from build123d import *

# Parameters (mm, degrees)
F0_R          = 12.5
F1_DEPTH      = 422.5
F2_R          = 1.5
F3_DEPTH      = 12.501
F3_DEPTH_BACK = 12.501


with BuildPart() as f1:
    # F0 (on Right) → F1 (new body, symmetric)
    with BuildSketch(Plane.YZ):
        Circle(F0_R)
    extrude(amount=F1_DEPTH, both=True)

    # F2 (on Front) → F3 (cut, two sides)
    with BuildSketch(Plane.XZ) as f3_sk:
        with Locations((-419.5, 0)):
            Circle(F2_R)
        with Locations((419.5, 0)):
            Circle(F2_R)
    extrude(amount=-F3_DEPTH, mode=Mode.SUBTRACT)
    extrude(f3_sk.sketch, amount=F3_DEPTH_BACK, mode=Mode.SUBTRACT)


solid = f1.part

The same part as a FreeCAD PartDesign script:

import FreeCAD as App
import Part
import Sketcher
Q = App.Units.Quantity

doc = App.newDocument("Part")
params = doc.addObject("Spreadsheet::Sheet", "Params")
for row, (alias, value) in enumerate([
    ("sketch1_diameter", "25 mm"),
    ("pad1_length", "845 mm"),
    ("sketch2_diameter", "3 mm"),
], start=1):
    params.set(f"A{row}", alias)
    params.set(f"B{row}", "=" + value)
    params.setAlias(f"B{row}", alias)

body = doc.addObject("PartDesign::Body", "Body")

# Sketch on YZ plane
sketch1 = body.newObject("Sketcher::SketchObject", "Sketch")
sketch1.AttachmentSupport = (doc.getObject("YZ_Plane"), [""])
sketch1.MapMode = "FlatFace"
sketch1.addGeometry(Part.Circle(App.Vector(0, 0, 0), App.Vector(0, 0, 1), 12.5), False)
sketch1.addConstraint(Sketcher.Constraint("Coincident", 0, 3, -1, 1))
sketch1.addConstraint(Sketcher.Constraint("Diameter", 0, Q("25 mm")))
sketch1.setExpression("Constraints[1]", "Params.sketch1_diameter")
pad1 = body.newObject("PartDesign::Pad", "Pad")
pad1.Profile = sketch1
pad1.setExpression("Length", "Params.pad1_length")
pad1.Midplane = True

# Sketch on XZ plane
sketch2 = body.newObject("Sketcher::SketchObject", "Sketch001")
sketch2.AttachmentSupport = (doc.getObject("XZ_Plane"), [""])
sketch2.MapMode = "FlatFace"
sketch2.addGeometry(Part.Circle(App.Vector(-419.5, 0, 0), App.Vector(0, 0, 1), 1.5), False)
sketch2.addGeometry(Part.Circle(App.Vector(419.5, 0, 0), App.Vector(0, 0, 1), 1.5), False)
sketch2.addConstraint(Sketcher.Constraint("Equal", 0, 1))
sketch2.addConstraint(Sketcher.Constraint("Symmetric", 0, 3, 1, 3, -1, 1))
sketch2.addConstraint(Sketcher.Constraint("PointOnObject", 0, 3, -1))
sketch2.addConstraint(Sketcher.Constraint("Diameter", 0, Q("3 mm")))
sketch2.addConstraint(Sketcher.Constraint("DistanceX", 0, 3, 1, 3, Q("839 mm")))
sketch2.setExpression("Constraints[3]", "Params.sketch2_diameter")
pocket1 = body.newObject("PartDesign::Pocket", "Pocket")
pocket1.Profile = sketch2
pocket1.Type = "ThroughAll"
pocket1.Midplane = True

doc.recompute()
